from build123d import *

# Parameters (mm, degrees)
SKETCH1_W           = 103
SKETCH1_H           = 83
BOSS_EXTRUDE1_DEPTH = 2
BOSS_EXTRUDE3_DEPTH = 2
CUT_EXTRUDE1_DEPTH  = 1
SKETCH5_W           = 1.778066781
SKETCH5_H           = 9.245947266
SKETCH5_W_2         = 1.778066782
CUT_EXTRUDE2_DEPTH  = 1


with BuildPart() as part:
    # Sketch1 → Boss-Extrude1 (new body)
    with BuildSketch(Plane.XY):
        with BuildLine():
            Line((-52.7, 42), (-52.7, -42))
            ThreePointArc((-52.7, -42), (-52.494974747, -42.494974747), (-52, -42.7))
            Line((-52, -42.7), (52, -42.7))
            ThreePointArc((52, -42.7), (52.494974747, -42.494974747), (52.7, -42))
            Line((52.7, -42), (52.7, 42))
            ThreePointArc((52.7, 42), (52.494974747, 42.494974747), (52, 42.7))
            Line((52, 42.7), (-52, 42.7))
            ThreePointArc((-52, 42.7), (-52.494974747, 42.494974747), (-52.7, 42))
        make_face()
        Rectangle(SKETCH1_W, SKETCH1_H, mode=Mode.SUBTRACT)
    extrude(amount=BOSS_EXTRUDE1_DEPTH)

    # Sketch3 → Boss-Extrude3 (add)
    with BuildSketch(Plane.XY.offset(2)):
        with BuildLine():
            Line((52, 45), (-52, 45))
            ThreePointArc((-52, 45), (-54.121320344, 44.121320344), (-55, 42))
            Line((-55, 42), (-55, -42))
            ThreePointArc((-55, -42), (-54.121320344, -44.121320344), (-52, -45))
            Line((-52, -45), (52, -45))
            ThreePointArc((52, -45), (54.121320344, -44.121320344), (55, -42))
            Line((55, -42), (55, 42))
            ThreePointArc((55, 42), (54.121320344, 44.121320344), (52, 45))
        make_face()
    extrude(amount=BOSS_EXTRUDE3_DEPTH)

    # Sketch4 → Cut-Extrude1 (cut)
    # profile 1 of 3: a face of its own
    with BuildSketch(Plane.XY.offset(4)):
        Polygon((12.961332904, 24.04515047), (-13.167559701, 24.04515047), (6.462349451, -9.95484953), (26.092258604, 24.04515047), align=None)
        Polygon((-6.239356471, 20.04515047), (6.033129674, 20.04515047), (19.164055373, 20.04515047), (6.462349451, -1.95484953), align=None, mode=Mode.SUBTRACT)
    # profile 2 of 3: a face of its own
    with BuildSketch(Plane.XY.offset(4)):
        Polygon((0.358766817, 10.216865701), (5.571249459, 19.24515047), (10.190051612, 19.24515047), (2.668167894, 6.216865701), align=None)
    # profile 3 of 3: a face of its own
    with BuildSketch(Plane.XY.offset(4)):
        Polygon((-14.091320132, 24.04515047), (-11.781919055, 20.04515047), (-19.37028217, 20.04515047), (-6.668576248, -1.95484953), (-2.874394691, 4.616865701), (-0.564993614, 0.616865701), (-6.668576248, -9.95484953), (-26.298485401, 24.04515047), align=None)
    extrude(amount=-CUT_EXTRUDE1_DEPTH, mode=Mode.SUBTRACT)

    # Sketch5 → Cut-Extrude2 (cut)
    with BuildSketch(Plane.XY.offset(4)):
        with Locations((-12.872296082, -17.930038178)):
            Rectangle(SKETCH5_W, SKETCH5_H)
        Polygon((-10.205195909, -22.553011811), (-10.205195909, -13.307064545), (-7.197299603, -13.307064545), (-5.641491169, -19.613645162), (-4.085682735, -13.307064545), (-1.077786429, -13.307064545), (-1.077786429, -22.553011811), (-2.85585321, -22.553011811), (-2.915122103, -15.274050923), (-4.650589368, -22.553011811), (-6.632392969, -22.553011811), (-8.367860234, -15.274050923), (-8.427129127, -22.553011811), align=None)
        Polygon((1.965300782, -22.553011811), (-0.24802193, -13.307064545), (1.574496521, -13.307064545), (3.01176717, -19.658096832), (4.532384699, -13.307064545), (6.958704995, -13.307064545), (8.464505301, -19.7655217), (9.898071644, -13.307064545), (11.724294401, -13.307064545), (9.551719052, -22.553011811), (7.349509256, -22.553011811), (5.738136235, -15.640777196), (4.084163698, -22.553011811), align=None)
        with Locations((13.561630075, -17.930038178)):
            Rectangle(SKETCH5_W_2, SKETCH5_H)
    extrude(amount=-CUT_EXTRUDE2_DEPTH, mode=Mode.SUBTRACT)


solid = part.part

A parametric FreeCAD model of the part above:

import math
import FreeCAD as App
import Part
import Sketcher
from FreeCAD import Vector
Q = App.Units.Quantity

doc = App.newDocument("Part")
body = doc.addObject("PartDesign::Body", "Body")

sketch1 = body.newObject("Sketcher::SketchObject", "Sketch")
sketch1.AttachmentSupport = (doc.getObject("XY_Plane"), [""])
sketch1.MapMode = "FlatFace"
sketch1.addGeometry(Part.LineSegment(Vector(-52.7, 42, 0), Vector(-52.7, -42, 0)), False)
sketch1.addGeometry(Part.ArcOfCircle(Part.Circle(Vector(-52, -42, 0), Vector(0, 0, 1), 0.7), math.radians(180), math.radians(270)), False)
sketch1.addGeometry(Part.LineSegment(Vector(-52, -42.7, 0), Vector(52, -42.7, 0)), False)
sketch1.addGeometry(Part.ArcOfCircle(Part.Circle(Vector(52, -42, 0), Vector(0, 0, 1), 0.7), math.radians(-90), math.radians(0)), False)
sketch1.addGeometry(Part.LineSegment(Vector(52.7, -42, 0), Vector(52.7, 42, 0)), False)
sketch1.addGeometry(Part.ArcOfCircle(Part.Circle(Vector(52, 42, 0), Vector(0, 0, 1), 0.7), math.radians(0), math.radians(90)), False)
sketch1.addGeometry(Part.LineSegment(Vector(52, 42.7, 0), Vector(-52, 42.7, 0)), False)
sketch1.addGeometry(Part.ArcOfCircle(Part.Circle(Vector(-52, 42, 0), Vector(0, 0, 1), 0.7), math.radians(90), math.radians(180)), False)
sketch1.addGeometry(Part.LineSegment(Vector(51.5, -41.5, 0), Vector(-51.5, -41.5, 0)), False)
sketch1.addGeometry(Part.LineSegment(Vector(-51.5, -41.5, 0), Vector(-51.5, 41.5, 0)), False)
sketch1.addGeometry(Part.LineSegment(Vector(-51.5, 41.5, 0), Vector(51.5, 41.5, 0)), False)
sketch1.addGeometry(Part.LineSegment(Vector(51.5, 41.5, 0), Vector(51.5, -41.5, 0)), False)
sketch1.addConstraint(Sketcher.Constraint("Tangent", 0, 2, 1, 1))
sketch1.addConstraint(Sketcher.Constraint("Tangent", 1, 2, 2, 1))
sketch1.addConstraint(Sketcher.Constraint("Tangent", 2, 2, 3, 1))
sketch1.addConstraint(Sketcher.Constraint("Tangent", 3, 2, 4, 1))
sketch1.addConstraint(Sketcher.Constraint("Tangent", 4, 2, 5, 1))
sketch1.addConstraint(Sketcher.Constraint("Tangent", 5, 2, 6, 1))
sketch1.addConstraint(Sketcher.Constraint("Tangent", 6, 2, 7, 1))
sketch1.addConstraint(Sketcher.Constraint("Tangent", 7, 2, 0, 1))
sketch1.addConstraint(Sketcher.Constraint("Coincident", 8, 2, 9, 1))
sketch1.addConstraint(Sketcher.Constraint("Coincident", 9, 2, 10, 1))
sketch1.addConstraint(Sketcher.Constraint("Coincident", 10, 2, 11, 1))
sketch1.addConstraint(Sketcher.Constraint("Coincident", 11, 2, 8, 1))
sketch1.addConstraint(Sketcher.Constraint("Vertical", 0))
sketch1.addConstraint(Sketcher.Constraint("Horizontal", 2))
sketch1.addConstraint(Sketcher.Constraint("Vertical", 4))
sketch1.addConstraint(Sketcher.Constraint("Horizontal", 6))
sketch1.addConstraint(Sketcher.Constraint("Horizontal", 8))
sketch1.addConstraint(Sketcher.Constraint("Vertical", 9))
sketch1.addConstraint(Sketcher.Constraint("Horizontal", 10))
sketch1.addConstraint(Sketcher.Constraint("Vertical", 11))
sketch1.addConstraint(Sketcher.Constraint("Equal", 1, 3))
sketch1.addConstraint(Sketcher.Constraint("Equal", 3, 5))
sketch1.addConstraint(Sketcher.Constraint("Equal", 5, 7))
sketch1.addConstraint(Sketcher.Constraint("Symmetric", 1, 3, 5, 3, -1, 1))
sketch1.addConstraint(Sketcher.Constraint("Symmetric", 8, 2, 10, 2, -1, 1))
sketch1.addConstraint(Sketcher.Constraint("Radius", 1, 0.7))
sketch1.addConstraint(Sketcher.Constraint("DistanceX", 2, 1, 2, 2, 104.0))
sketch1.addConstraint(Sketcher.Constraint("DistanceX", 8, 2, 8, 1, 103.0))
sketch1.addConstraint(Sketcher.Constraint("DistanceY", 0, 2, 0, 1, 84.0))
sketch1.addConstraint(Sketcher.Constraint("DistanceY", 9, 1, 9, 2, 83.0))
pad1 = body.newObject("PartDesign::Pad", "Pad")
pad1.Profile = sketch1
pad1.Length = 2

sketch2 = body.newObject("Sketcher::SketchObject", "Sketch001")
sketch2.AttachmentSupport = (doc.getObject("XY_Plane"), [""])
sketch2.MapMode = "FlatFace"
sketch2.AttachmentOffset = App.Placement(Vector(0, 0, 2), App.Rotation())
sketch2.addGeometry(Part.LineSegment(Vector(52, 45, 0), Vector(-52, 45, 0)), False)
sketch2.addGeometry(Part.ArcOfCircle(Part.Circle(Vector(-52, 42, 0), Vector(0, 0, 1), 3), math.radians(90), math.radians(180)), False)
sketch2.addGeometry(Part.LineSegment(Vector(-55, 42, 0), Vector(-55, -42, 0)), False)
sketch2.addGeometry(Part.ArcOfCircle(Part.Circle(Vector(-52, -42, 0), Vector(0, 0, 1), 3), math.radians(180), math.radians(270)), False)
sketch2.addGeometry(Part.LineSegment(Vector(-52, -45, 0), Vector(52, -45, 0)), False)
sketch2.addGeometry(Part.ArcOfCircle(Part.Circle(Vector(52, -42, 0), Vector(0, 0, 1), 3), math.radians(-90), math.radians(0)), False)
sketch2.addGeometry(Part.LineSegment(Vector(55, -42, 0), Vector(55, 42, 0)), False)
sketch2.addGeometry(Part.ArcOfCircle(Part.Circle(Vector(52, 42, 0), Vector(0, 0, 1), 3), math.radians(0), math.radians(90)), False)
sketch2.addConstraint(Sketcher.Constraint("Tangent", 0, 2, 1, 1))
sketch2.addConstraint(Sketcher.Constraint("Tangent", 1, 2, 2, 1))
sketch2.addConstraint(Sketcher.Constraint("Tangent", 2, 2, 3, 1))
sketch2.addConstraint(Sketcher.Constraint("Tangent", 3, 2, 4, 1))
sketch2.addConstraint(Sketcher.Constraint("Tangent", 4, 2, 5, 1))
sketch2.addConstraint(Sketcher.Constraint("Tangent", 5, 2, 6, 1))
sketch2.addConstraint(Sketcher.Constraint("Tangent", 6, 2, 7, 1))
sketch2.addConstraint(Sketcher.Constraint("Tangent", 7, 2, 0, 1))
sketch2.addConstraint(Sketcher.Constraint("Horizontal", 0))
sketch2.addConstraint(Sketcher.Constraint("Vertical", 2))
sketch2.addConstraint(Sketcher.Constraint("Horizontal", 4))
sketch2.addConstraint(Sketcher.Constraint("Vertical", 6))
sketch2.addConstraint(Sketcher.Constraint("Equal", 1, 3))
sketch2.addConstraint(Sketcher.Constraint("Equal", 3, 5))
sketch2.addConstraint(Sketcher.Constraint("Equal", 5, 7))
sketch2.addConstraint(Sketcher.Constraint("Symmetric", 1, 3, 5, 3, -1, 1))
sketch2.addConstraint(Sketcher.Constraint("Radius", 1, 3.0))
sketch2.addConstraint(Sketcher.Constraint("DistanceX", 0, 2, 0, 1, 104.0))
sketch2.addConstraint(Sketcher.Constraint("DistanceY", 2, 2, 2, 1, 84.0))
pad2 = body.newObject("PartDesign::Pad", "Pad001")
pad2.Profile = sketch2
pad2.Length = 2

sketch3 = body.newObject("Sketcher::SketchObject", "Sketch002")
sketch3.AttachmentSupport = (doc.getObject("XY_Plane"), [""])
sketch3.MapMode = "FlatFace"
sketch3.AttachmentOffset = App.Placement(Vector(0, 0, 4), App.Rotation())
sketch3.addGeometry(Part.LineSegment(Vector(-13.2, 24, 0), Vector(6.5, -10, 0)), False)
sketch3.addGeometry(Part.LineSegment(Vector(6.5, -10, 0), Vector(26.1, 24, 0)), False)
sketch3.addGeometry(Part.LineSegment(Vector(26.1, 24, 0), Vector(-13.2, 24, 0)), False)
sketch3.addGeometry(Part.LineSegment(Vector(6.5, -2, 0), Vector(-6.2, 20, 0)), False)
sketch3.addGeometry(Part.LineSegment(Vector(-6.2, 20, 0), Vector(19.2, 20, 0)), False)
sketch3.addGeometry(Part.LineSegment(Vector(19.2, 20, 0), Vector(6.5, -2, 0)), False)
sketch3.addGeometry(Part.LineSegment(Vector(5.6, 19.2, 0), Vector(0.4, 10.2, 0)), False)
sketch3.addGeometry(Part.LineSegment(Vector(0.4, 10.2, 0), Vector(2.7, 6.2, 0)), False)
sketch3.addGeometry(Part.LineSegment(Vector(2.7, 6.2, 0), Vector(10.2, 19.2, 0)), False)
sketch3.addGeometry(Part.LineSegment(Vector(10.2, 19.2, 0), Vector(5.6, 19.2, 0)), False)
sketch3.addGeometry(Part.LineSegment(Vector(-11.8, 20, 0), Vector(-14.1, 24, 0)), False)
sketch3.addGeometry(Part.LineSegment(Vector(-14.1, 24, 0), Vector(-26.3, 24, 0)), False)
sketch3.addGeometry(Part.LineSegment(Vector(-26.3, 24, 0), Vector(-6.7, -10, 0)), False)
sketch3.addGeometry(Part.LineSegment(Vector(-6.7, -10, 0), Vector(-0.6, 0.6, 0)), False)
sketch3.addGeometry(Part.LineSegment(Vector(-0.6, 0.6, 0), Vector(-2.9, 4.6, 0)), False)
sketch3.addGeometry(Part.LineSegment(Vector(-2.9, 4.6, 0), Vector(-6.7, -2, 0)), False)
sketch3.addGeometry(Part.LineSegment(Vector(-6.7, -2, 0), Vector(-19.4, 20, 0)), False)
sketch3.addGeometry(Part.LineSegment(Vector(-19.4, 20, 0), Vector(-11.8, 20, 0)), False)
sketch3.addConstraint(Sketcher.Constraint("Coincident", 0, 2, 1, 1))
sketch3.addConstraint(Sketcher.Constraint("Coincident", 1, 2, 2, 1))
sketch3.addConstraint(Sketcher.Constraint("Coincident", 2, 2, 0, 1))
sketch3.addConstraint(Sketcher.Constraint("Coincident", 3, 2, 4, 1))
sketch3.addConstraint(Sketcher.Constraint("Coincident", 4, 2, 5, 1))
sketch3.addConstraint(Sketcher.Constraint("Coincident", 5, 2, 3, 1))
sketch3.addConstraint(Sketcher.Constraint("Coincident", 6, 2, 7, 1))
sketch3.addConstraint(Sketcher.Constraint("Coincident", 7, 2, 8, 1))
sketch3.addConstraint(Sketcher.Constraint("Coincident", 8, 2, 9, 1))
sketch3.addConstraint(Sketcher.Constraint("Coincident", 9, 2, 6, 1))
sketch3.addConstraint(Sketcher.Constraint("Coincident", 10, 2, 11, 1))
sketch3.addConstraint(Sketcher.Constraint("Coincident", 11, 2, 12, 1))
sketch3.addConstraint(Sketcher.Constraint("Coincident", 12, 2, 13, 1))
sketch3.addConstraint(Sketcher.Constraint("Coincident", 13, 2, 14, 1))
sketch3.addConstraint(Sketcher.Constraint("Coincident", 14, 2, 15, 1))
sketch3.addConstraint(Sketcher.Constraint("Coincident", 15, 2, 16, 1))
sketch3.addConstraint(Sketcher.Constraint("Coincident", 16, 2, 17, 1))
sketch3.addConstraint(Sketcher.Constraint("Coincident", 17, 2, 10, 1))
sketch3.addConstraint(Sketcher.Constraint("Horizontal", 2))
sketch3.addConstraint(Sketcher.Constraint("Horizontal", 4))
sketch3.addConstraint(Sketcher.Constraint("Horizontal", 9))
sketch3.addConstraint(Sketcher.Constraint("Horizontal", 11))
sketch3.addConstraint(Sketcher.Constraint("Horizontal", 17))
sketch3.addConstraint(Sketcher.Constraint("Parallel", 0, 3))
sketch3.addConstraint(Sketcher.Constraint("Parallel", 1, 5))
sketch3.addConstraint(Sketcher.Constraint("Parallel", 5, 6))
sketch3.addConstraint(Sketcher.Constraint("Parallel", 3, 7))
sketch3.addConstraint(Sketcher.Constraint("Parallel", 6, 8))
sketch3.addConstraint(Sketcher.Constraint("Parallel", 7, 10))
sketch3.addConstraint(Sketcher.Constraint("Parallel", 10, 12))
sketch3.addConstraint(Sketcher.Constraint("Parallel", 8, 13))
sketch3.addConstraint(Sketcher.Constraint("Parallel", 12, 14))
sketch3.addConstraint(Sketcher.Constraint("Parallel", 13, 15))
sketch3.addConstraint(Sketcher.Constraint("Parallel", 14, 16))
sketch3.addConstraint(Sketcher.Constraint("Horizontal", 2, 2, 10, 2))
sketch3.addConstraint(Sketcher.Constraint("Horizontal", 0, 2, 12, 2))
sketch3.addConstraint(Sketcher.Constraint("Horizontal", 5, 2, 15, 2))
sketch3.addConstraint(Sketcher.Constraint("Horizontal", 4, 2, 16, 2))
sketch3.addConstraint(Sketcher.Constraint("Vertical", 0, 2, 5, 2))
sketch3.addConstraint(Sketcher.Constraint("Vertical", 12, 2, 15, 2))
sketch3.addConstraint(Sketcher.Constraint("Equal", 0, 1))
sketch3.addConstraint(Sketcher.Constraint("Equal", 7, 10))
sketch3.addConstraint(Sketcher.Constraint("Equal", 10, 14))
sketch3.addConstraint(Sketcher.Constraint("Angle", 0, Q("-60 deg")))
sketch3.addConstraint(Sketcher.Constraint("DistanceY", 0, 2, 1, 2, 34.0))
sketch3.addConstraint(Sketcher.Constraint("DistanceY", 3, 2, 2, 2, 4.0))
sketch3.addConstraint(Sketcher.Constraint("DistanceY", 8, 2, 4, 2, 0.8))
sketch3.addConstraint(Sketcher.Constraint("DistanceY", 13, 2, 7, 2, 5.6))
sketch3.addConstraint(Sketcher.Constraint("DistanceX", 11, 2, 11, 1, 12.207165))
sketch3.addConstraint(Sketcher.Constraint("DistanceX", -1, 1, 0, 2, 6.462349))
sketch3.addConstraint(Sketcher.Constraint("DistanceY", 0, 2, -1, 1, 9.95485))
sketch3.addConstraint(Sketcher.Constraint("DistanceX", -1, 1, 8, 2, 10.190052))
sketch3.addConstraint(Sketcher.Constraint("DistanceX", 10, 2, -1, 1, 14.09132))
sketch3.addConstraint(Sketcher.Constraint("DistanceX", 6, 2, 4, 2, 18.805289))
pocket1 = body.newObject("PartDesign::Pocket", "Pocket")
pocket1.Profile = sketch3
pocket1.Length = 1

sketch4 = body.newObject("Sketcher::SketchObject", "Sketch003")
sketch4.AttachmentSupport = (doc.getObject("XY_Plane"), [""])
sketch4.MapMode = "FlatFace"
sketch4.AttachmentOffset = App.Placement(Vector(0, 0, 4), App.Rotation())
sketch4.addGeometry(Part.LineSegment(Vector(-13.761329, -13.307065, 0), Vector(-13.761329, -22.553012, 0)), False)
sketch4.addGeometry(Part.LineSegment(Vector(-13.761329, -22.553012, 0), Vector(-11.983263, -22.553012, 0)), False)
sketch4.addGeometry(Part.LineSegment(Vector(-11.983263, -22.553012, 0), Vector(-11.983263, -13.307065, 0)), False)
sketch4.addGeometry(Part.LineSegment(Vector(-11.983263, -13.307065, 0), Vector(-13.761329, -13.307065, 0)), False)
sketch4.addGeometry(Part.LineSegment(Vector(-10.205196, -13.307065, 0), Vector(-10.205196, -22.553012, 0)), False)
sketch4.addGeometry(Part.LineSegment(Vector(-10.205196, -22.553012, 0), Vector(-8.427129, -22.553012, 0)), False)
sketch4.addGeometry(Part.LineSegment(Vector(-8.427129, -22.553012, 0), Vector(-8.36786, -15.274051, 0)), False)
sketch4.addGeometry(Part.LineSegment(Vector(-8.36786, -15.274051, 0), Vector(-6.632393, -22.553012, 0)), False)
sketch4.addGeometry(Part.LineSegment(Vector(-6.632393, -22.553012, 0), Vector(-4.650589, -22.553012, 0)), False)
sketch4.addGeometry(Part.LineSegment(Vector(-4.650589, -22.553012, 0), Vector(-2.915122, -15.274051, 0)), False)
sketch4.addGeometry(Part.LineSegment(Vector(-2.915122, -15.274051, 0), Vector(-2.855853, -22.553012, 0)), False)
sketch4.addGeometry(Part.LineSegment(Vector(-2.855853, -22.553012, 0), Vector(-1.077786, -22.553012, 0)), False)
sketch4.addGeometry(Part.LineSegment(Vector(-1.077786, -22.553012, 0), Vector(-1.077786, -13.307065, 0)), False)
sketch4.addGeometry(Part.LineSegment(Vector(-1.077786, -13.307065, 0), Vector(-4.085683, -13.307065, 0)), False)
sketch4.addGeometry(Part.LineSegment(Vector(-4.085683, -13.307065, 0), Vector(-5.641491, -19.613645, 0)), False)
sketch4.addGeometry(Part.LineSegment(Vector(-5.641491, -19.613645, 0), Vector(-7.1973, -13.307065, 0)), False)
sketch4.addGeometry(Part.LineSegment(Vector(-7.1973, -13.307065, 0), Vector(-10.205196, -13.307065, 0)), False)
sketch4.addGeometry(Part.LineSegment(Vector(-0.248022, -13.307065, 0), Vector(1.965301, -22.553012, 0)), False)
sketch4.addGeometry(Part.LineSegment(Vector(1.965301, -22.553012, 0), Vector(4.084164, -22.553012, 0)), False)
sketch4.addGeometry(Part.LineSegment(Vector(4.084164, -22.553012, 0), Vector(5.738136, -15.640777, 0)), False)
sketch4.addGeometry(Part.LineSegment(Vector(5.738136, -15.640777, 0), Vector(7.349509, -22.553012, 0)), False)
sketch4.addGeometry(Part.LineSegment(Vector(7.349509, -22.553012, 0), Vector(9.551719, -22.553012, 0)), False)
sketch4.addGeometry(Part.LineSegment(Vector(9.551719, -22.553012, 0), Vector(11.724294, -13.307065, 0)), False)
sketch4.addGeometry(Part.LineSegment(Vector(11.724294, -13.307065, 0), Vector(9.898072, -13.307065, 0)), False)
sketch4.addGeometry(Part.LineSegment(Vector(9.898072, -13.307065, 0), Vector(8.464505, -19.765522, 0)), False)
sketch4.addGeometry(Part.LineSegment(Vector(8.464505, -19.765522, 0), Vector(6.958705, -13.307065, 0)), False)
sketch4.addGeometry(Part.LineSegment(Vector(6.958705, -13.307065, 0), Vector(4.532385, -13.307065, 0)), False)
sketch4.addGeometry(Part.LineSegment(Vector(4.532385, -13.307065, 0), Vector(3.011767, -19.658097, 0)), False)
sketch4.addGeometry(Part.LineSegment(Vector(3.011767, -19.658097, 0), Vector(1.574497, -13.307065, 0)), False)
sketch4.addGeometry(Part.LineSegment(Vector(1.574497, -13.307065, 0), Vector(-0.248022, -13.307065, 0)), False)
sketch4.addGeometry(Part.LineSegment(Vector(12.672597, -13.307065, 0), Vector(12.672597, -22.553012, 0)), False)
sketch4.addGeometry(Part.LineSegment(Vector(12.672597, -22.553012, 0), Vector(14.450663, -22.553012, 0)), False)
sketch4.addGeometry(Part.LineSegment(Vector(14.450663, -22.553012, 0), Vector(14.450663, -13.307065, 0)), False)
sketch4.addGeometry(Part.LineSegment(Vector(14.450663, -13.307065, 0), Vector(12.672597, -13.307065, 0)), False)
sketch4.addConstraint(Sketcher.Constraint("Coincident", 0, 2, 1, 1))
sketch4.addConstraint(Sketcher.Constraint("Coincident", 1, 2, 2, 1))
sketch4.addConstraint(Sketcher.Constraint("Coincident", 2, 2, 3, 1))
sketch4.addConstraint(Sketcher.Constraint("Coincident", 3, 2, 0, 1))
sketch4.addConstraint(Sketcher.Constraint("Coincident", 4, 2, 5, 1))
sketch4.addConstraint(Sketcher.Constraint("Coincident", 5, 2, 6, 1))
sketch4.addConstraint(Sketcher.Constraint("Coincident", 6, 2, 7, 1))
sketch4.addConstraint(Sketcher.Constraint("Coincident", 7, 2, 8, 1))
sketch4.addConstraint(Sketcher.Constraint("Coincident", 8, 2, 9, 1))
sketch4.addConstraint(Sketcher.Constraint("Coincident", 9, 2, 10, 1))
sketch4.addConstraint(Sketcher.Constraint("Coincident", 10, 2, 11, 1))
sketch4.addConstraint(Sketcher.Constraint("Coincident", 11, 2, 12, 1))
sketch4.addConstraint(Sketcher.Constraint("Coincident", 12, 2, 13, 1))
sketch4.addConstraint(Sketcher.Constraint("Coincident", 13, 2, 14, 1))
sketch4.addConstraint(Sketcher.Constraint("Coincident", 14, 2, 15, 1))
sketch4.addConstraint(Sketcher.Constraint("Coincident", 15, 2, 16, 1))
sketch4.addConstraint(Sketcher.Constraint("Coincident", 16, 2, 4, 1))
sketch4.addConstraint(Sketcher.Constraint("Coincident", 17, 2, 18, 1))
sketch4.addConstraint(Sketcher.Constraint("Coincident", 18, 2, 19, 1))
sketch4.addConstraint(Sketcher.Constraint("Coincident", 19, 2, 20, 1))
sketch4.addConstraint(Sketcher.Constraint("Coincident", 20, 2, 21, 1))
sketch4.addConstraint(Sketcher.Constraint("Coincident", 21, 2, 22, 1))
sketch4.addConstraint(Sketcher.Constraint("Coincident", 22, 2, 23, 1))
sketch4.addConstraint(Sketcher.Constraint("Coincident", 23, 2, 24, 1))
sketch4.addConstraint(Sketcher.Constraint("Coincident", 24, 2, 25, 1))
sketch4.addConstraint(Sketcher.Constraint("Coincident", 25, 2, 26, 1))
sketch4.addConstraint(Sketcher.Constraint("Coincident", 26, 2, 27, 1))
sketch4.addConstraint(Sketcher.Constraint("Coincident", 27, 2, 28, 1))
sketch4.addConstraint(Sketcher.Constraint("Coincident", 28, 2, 29, 1))
sketch4.addConstraint(Sketcher.Constraint("Coincident", 29, 2, 17, 1))
sketch4.addConstraint(Sketcher.Constraint("Coincident", 30, 2, 31, 1))
sketch4.addConstraint(Sketcher.Constraint("Coincident", 31, 2, 32, 1))
sketch4.addConstraint(Sketcher.Constraint("Coincident", 32, 2, 33, 1))
sketch4.addConstraint(Sketcher.Constraint("Coincident", 33, 2, 30, 1))
sketch4.addConstraint(Sketcher.Constraint("Vertical", 0))
sketch4.addConstraint(Sketcher.Constraint("Horizontal", 1))
sketch4.addConstraint(Sketcher.Constraint("Vertical", 2))
sketch4.addConstraint(Sketcher.Constraint("Horizontal", 3))
sketch4.addConstraint(Sketcher.Constraint("Vertical", 4))
sketch4.addConstraint(Sketcher.Constraint("Horizontal", 5))
sketch4.addConstraint(Sketcher.Constraint("Horizontal", 8))
sketch4.addConstraint(Sketcher.Constraint("Horizontal", 11))
sketch4.addConstraint(Sketcher.Constraint("Vertical", 12))
sketch4.addConstraint(Sketcher.Constraint("Horizontal", 13))
sketch4.addConstraint(Sketcher.Constraint("Horizontal", 16))
sketch4.addConstraint(Sketcher.Constraint("Horizontal", 18))
sketch4.addConstraint(Sketcher.Constraint("Horizontal", 21))
sketch4.addConstraint(Sketcher.Constraint("Horizontal", 23))
sketch4.addConstraint(Sketcher.Constraint("Horizontal", 26))
sketch4.addConstraint(Sketcher.Constraint("Horizontal", 29))
sketch4.addConstraint(Sketcher.Constraint("Vertical", 30))
sketch4.addConstraint(Sketcher.Constraint("Horizontal", 31))
sketch4.addConstraint(Sketcher.Constraint("Vertical", 32))
sketch4.addConstraint(Sketcher.Constraint("Horizontal", 33))
sketch4.addConstraint(Sketcher.Constraint("Horizontal", 1, 2, 4, 2))
sketch4.addConstraint(Sketcher.Constraint("Horizontal", 5, 2, 7, 2))
sketch4.addConstraint(Sketcher.Constraint("Horizontal", 6, 2, 9, 2))
sketch4.addConstraint(Sketcher.Constraint("Horizontal", 8, 2, 10, 2))
sketch4.addConstraint(Sketcher.Constraint("Horizontal", 3, 2, 12, 2))
sketch4.addConstraint(Sketcher.Constraint("Horizontal", 13, 2, 15, 2))
sketch4.addConstraint(Sketcher.Constraint("Horizontal", 11, 2, 17, 2))
sketch4.addConstraint(Sketcher.Constraint("Horizontal", 18, 2, 20, 2))
sketch4.addConstraint(Sketcher.Constraint("Horizontal", 16, 2, 22, 2))
sketch4.addConstraint(Sketcher.Constraint("Horizontal", 23, 2, 25, 2))
sketch4.addConstraint(Sketcher.Constraint("Horizontal", 26, 2, 28, 2))
sketch4.addConstraint(Sketcher.Constraint("Horizontal", 21, 2, 30, 2))
sketch4.addConstraint(Sketcher.Constraint("Horizontal", 29, 2, 32, 2))
sketch4.addConstraint(Sketcher.Constraint("Equal", 3, 5))
sketch4.addConstraint(Sketcher.Constraint("Equal", 5, 11))
sketch4.addConstraint(Sketcher.Constraint("Equal", 13, 16))
sketch4.addConstraint(Sketcher.Constraint("Equal", 11, 31))
sketch4.addConstraint(Sketcher.Constraint("Equal", 7, 9))
sketch4.addConstraint(Sketcher.Constraint("Equal", 6, 10))
sketch4.addConstraint(Sketcher.Constraint("Equal", 14, 15))
sketch4.addConstraint(Sketcher.Constraint("DistanceX", 21, 1, 21, 2, 2.20221))
sketch4.addConstraint(Sketcher.Constraint("DistanceX", 26, 2, 26, 1, 2.42632))
sketch4.addConstraint(Sketcher.Constraint("DistanceX", 29, 2, 29, 1, 1.822518))
sketch4.addConstraint(Sketcher.Constraint("DistanceX", 15, 2, -1, 1, 7.1973))
sketch4.addConstraint(Sketcher.Constraint("DistanceX", -1, 1, 17, 2, 1.965301))
sketch4.addConstraint(Sketcher.Constraint("DistanceX", 0, 2, 5, 2, 5.3342))
sketch4.addConstraint(Sketcher.Constraint("DistanceX", 7, 2, 14, 2, 0.990902))
sketch4.addConstraint(Sketcher.Constraint("DistanceX", 25, 2, 24, 2, 1.5058))
sketch4.addConstraint(Sketcher.Constraint("DistanceX", 9, 2, 29, 2, 2.6671))
sketch4.addConstraint(Sketcher.Constraint("Distance", 7, 7.482989))
sketch4.addConstraint(Sketcher.Constraint("Distance", 20, 7.097571))
sketch4.addConstraint(Sketcher.Constraint("Distance", 22, 9.497769))
sketch4.addConstraint(Sketcher.Constraint("DistanceX", 1, 1, 1, 2, 1.778067))
sketch4.addConstraint(Sketcher.Constraint("DistanceX", 13, 2, 13, 1, 3.007896))
sketch4.addConstraint(Sketcher.Constraint("DistanceX", 18, 1, 18, 2, 2.118863))
sketch4.addConstraint(Sketcher.Constraint("DistanceX", 23, 2, 23, 1, 1.826223))
sketch4.addConstraint(Sketcher.Constraint("DistanceY", 0, 2, 0, 1, 9.245947))
sketch4.addConstraint(Sketcher.Constraint("DistanceY", 0, 2, -1, 1, 22.553012))
sketch4.addConstraint(Sketcher.Constraint("DistanceX", 6, 2, -1, 1, 8.36786))
sketch4.addConstraint(Sketcher.Constraint("DistanceY", 6, 2, -1, 1, 15.274051))
sketch4.addConstraint(Sketcher.Constraint("DistanceX", -1, 1, 20, 2, 7.349509))
sketch4.addConstraint(Sketcher.Constraint("DistanceY", 24, 2, -1, 1, 19.765522))
sketch4.addConstraint(Sketcher.Constraint("DistanceX", 9, 2, 19, 2, 8.653258))
sketch4.addConstraint(Sketcher.Constraint("DistanceX", 19, 2, 24, 2, 2.726369))
sketch4.addConstraint(Sketcher.Constraint("DistanceX", 27, 2, 19, 2, 2.726369))
sketch4.addConstraint(Sketcher.Constraint("DistanceY", 27, 2, 19, 2, 4.01732))
sketch4.addConstraint(Sketcher.Constraint("DistanceX", 24, 2, 30, 2, 4.208091))
sketch4.addConstraint(Sketcher.Constraint("Distance", 14, 6.495652))
pocket2 = body.newObject("PartDesign::Pocket", "Pocket001")
pocket2.Profile = sketch4
pocket2.Length = 1

doc.recompute()
